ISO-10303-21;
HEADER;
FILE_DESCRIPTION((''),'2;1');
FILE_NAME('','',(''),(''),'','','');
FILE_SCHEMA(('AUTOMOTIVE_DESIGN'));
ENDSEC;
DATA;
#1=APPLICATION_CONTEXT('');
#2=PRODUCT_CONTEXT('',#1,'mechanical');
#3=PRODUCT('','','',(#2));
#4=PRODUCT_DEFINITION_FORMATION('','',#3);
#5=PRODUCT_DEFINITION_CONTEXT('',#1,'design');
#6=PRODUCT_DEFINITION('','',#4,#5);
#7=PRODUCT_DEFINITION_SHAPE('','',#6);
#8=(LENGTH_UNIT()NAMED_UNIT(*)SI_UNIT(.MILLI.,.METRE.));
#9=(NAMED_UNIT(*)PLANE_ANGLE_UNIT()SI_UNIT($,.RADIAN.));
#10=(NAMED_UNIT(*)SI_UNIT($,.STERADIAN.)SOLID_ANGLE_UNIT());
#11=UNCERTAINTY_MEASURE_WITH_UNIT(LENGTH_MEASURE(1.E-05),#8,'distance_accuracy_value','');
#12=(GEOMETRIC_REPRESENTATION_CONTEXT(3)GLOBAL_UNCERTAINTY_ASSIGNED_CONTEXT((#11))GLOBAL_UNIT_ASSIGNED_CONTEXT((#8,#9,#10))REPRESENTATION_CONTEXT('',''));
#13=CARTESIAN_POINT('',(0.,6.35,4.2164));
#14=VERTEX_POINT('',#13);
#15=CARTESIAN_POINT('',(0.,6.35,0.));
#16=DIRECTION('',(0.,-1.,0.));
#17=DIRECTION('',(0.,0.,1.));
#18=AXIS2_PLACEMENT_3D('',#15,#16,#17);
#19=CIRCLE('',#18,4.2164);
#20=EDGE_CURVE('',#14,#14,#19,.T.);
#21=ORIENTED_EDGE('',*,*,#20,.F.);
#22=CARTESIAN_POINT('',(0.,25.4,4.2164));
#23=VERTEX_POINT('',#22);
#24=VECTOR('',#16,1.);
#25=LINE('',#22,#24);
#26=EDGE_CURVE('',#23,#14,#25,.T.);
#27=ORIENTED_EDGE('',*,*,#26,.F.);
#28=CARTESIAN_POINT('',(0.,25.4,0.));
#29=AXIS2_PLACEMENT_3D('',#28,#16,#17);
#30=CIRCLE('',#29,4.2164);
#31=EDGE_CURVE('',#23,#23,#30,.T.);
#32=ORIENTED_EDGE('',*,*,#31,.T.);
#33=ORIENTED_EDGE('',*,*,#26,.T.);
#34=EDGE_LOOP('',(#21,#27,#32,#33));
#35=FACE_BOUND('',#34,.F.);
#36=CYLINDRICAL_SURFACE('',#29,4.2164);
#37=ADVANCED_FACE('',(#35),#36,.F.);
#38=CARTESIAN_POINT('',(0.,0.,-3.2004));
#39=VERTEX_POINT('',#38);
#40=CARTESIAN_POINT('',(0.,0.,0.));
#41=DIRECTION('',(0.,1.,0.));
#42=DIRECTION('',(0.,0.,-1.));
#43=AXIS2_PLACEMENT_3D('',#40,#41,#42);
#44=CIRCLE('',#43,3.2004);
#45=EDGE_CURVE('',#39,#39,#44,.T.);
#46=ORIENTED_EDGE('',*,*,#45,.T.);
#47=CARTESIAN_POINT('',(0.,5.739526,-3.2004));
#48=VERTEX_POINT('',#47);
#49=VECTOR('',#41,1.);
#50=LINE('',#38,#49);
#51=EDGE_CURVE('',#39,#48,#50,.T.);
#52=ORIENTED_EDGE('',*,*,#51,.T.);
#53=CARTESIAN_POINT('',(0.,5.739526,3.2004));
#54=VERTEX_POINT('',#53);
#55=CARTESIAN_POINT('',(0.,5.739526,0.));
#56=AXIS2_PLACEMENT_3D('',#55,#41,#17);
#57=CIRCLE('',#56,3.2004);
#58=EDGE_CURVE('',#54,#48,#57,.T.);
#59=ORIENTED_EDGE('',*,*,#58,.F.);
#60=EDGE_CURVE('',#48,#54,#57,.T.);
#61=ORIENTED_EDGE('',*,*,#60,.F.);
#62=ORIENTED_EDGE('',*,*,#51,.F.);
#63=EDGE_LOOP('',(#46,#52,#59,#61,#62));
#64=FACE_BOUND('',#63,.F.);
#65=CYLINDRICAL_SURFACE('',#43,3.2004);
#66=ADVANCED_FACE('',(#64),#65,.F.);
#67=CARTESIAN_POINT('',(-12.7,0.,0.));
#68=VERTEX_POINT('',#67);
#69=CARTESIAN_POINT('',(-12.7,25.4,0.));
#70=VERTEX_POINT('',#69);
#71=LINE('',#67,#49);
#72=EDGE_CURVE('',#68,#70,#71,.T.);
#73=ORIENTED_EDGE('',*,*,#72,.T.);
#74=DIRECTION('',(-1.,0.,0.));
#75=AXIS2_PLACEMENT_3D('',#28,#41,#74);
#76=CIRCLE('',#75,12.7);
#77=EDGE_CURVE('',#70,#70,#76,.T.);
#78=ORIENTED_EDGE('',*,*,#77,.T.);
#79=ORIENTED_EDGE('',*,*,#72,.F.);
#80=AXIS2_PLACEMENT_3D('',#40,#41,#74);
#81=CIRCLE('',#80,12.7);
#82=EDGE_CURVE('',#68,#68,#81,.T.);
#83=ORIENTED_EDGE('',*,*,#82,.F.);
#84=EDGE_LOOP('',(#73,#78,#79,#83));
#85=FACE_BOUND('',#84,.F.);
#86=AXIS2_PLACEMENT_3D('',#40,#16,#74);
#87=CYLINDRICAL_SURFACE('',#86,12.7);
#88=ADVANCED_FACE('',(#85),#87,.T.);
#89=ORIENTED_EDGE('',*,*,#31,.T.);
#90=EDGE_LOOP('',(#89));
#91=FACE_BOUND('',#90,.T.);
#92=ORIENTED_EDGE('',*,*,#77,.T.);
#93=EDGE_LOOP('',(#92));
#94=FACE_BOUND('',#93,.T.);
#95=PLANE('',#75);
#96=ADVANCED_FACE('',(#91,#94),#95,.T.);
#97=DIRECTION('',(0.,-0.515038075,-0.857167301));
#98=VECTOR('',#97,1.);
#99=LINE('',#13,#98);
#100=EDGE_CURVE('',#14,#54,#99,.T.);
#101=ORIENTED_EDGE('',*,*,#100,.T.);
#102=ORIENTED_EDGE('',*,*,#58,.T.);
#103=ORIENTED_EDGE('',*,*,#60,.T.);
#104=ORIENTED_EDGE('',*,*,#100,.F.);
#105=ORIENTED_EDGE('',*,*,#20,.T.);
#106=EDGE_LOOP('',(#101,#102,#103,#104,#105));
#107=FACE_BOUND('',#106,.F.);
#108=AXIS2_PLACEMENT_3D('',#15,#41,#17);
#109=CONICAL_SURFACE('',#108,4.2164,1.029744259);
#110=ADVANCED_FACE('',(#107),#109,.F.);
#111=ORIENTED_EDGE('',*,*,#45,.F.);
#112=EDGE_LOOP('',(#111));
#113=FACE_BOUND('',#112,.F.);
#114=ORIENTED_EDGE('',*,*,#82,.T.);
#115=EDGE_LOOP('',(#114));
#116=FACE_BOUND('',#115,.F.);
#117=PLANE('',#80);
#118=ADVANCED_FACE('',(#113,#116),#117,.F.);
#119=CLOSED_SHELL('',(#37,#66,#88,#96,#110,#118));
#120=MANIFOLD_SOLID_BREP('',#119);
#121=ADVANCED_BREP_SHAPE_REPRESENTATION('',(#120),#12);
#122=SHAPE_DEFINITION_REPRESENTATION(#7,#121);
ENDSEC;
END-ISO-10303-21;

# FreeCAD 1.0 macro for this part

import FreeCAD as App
import Part
import Sketcher
Q = App.Units.Quantity

doc = App.newDocument("Part")
params = doc.addObject("Spreadsheet::Sheet", "Params")
for row, (alias, value) in enumerate([
    ("sketch1_diameter", "1 in"),
    ("pad1_length", "1 in"),
    ("sketch2_diameter", "0.332 in"),
    ("hole_diameter", "0.332 in"),
    ("hole_depth", "0.75 in"),
    ("sketch3_diameter", "0.252 in"),
    ("hole2_diameter", "0.252 in"),
    ("hole2_depth", "0.5 in"),
], start=1):
    params.set(f"A{row}", alias)
    params.set(f"B{row}", "=" + value)
    params.setAlias(f"B{row}", alias)

body = doc.addObject("PartDesign::Body", "Body")

# Sketch on XZ plane
sketch1 = body.newObject("Sketcher::SketchObject", "Sketch")
sketch1.AttachmentSupport = (doc.getObject("XZ_Plane"), [""])
sketch1.MapMode = "FlatFace"
sketch1.addGeometry(Part.Circle(App.Vector(0, 0, 0), App.Vector(0, 0, 1), 13), False)
sketch1.addConstraint([
    Sketcher.Constraint("Coincident", 0, 3, -1, 1),
    Sketcher.Constraint("Diameter", 0, Q("1 in")),
])
sketch1.setExpression("Constraints[1]", "Params.sketch1_diameter")
pad1 = body.newObject("PartDesign::Pad", "Pad")
pad1.Profile = sketch1
pad1.setExpression("Length", "Params.pad1_length")
pad1.Reversed = True

# Sketch on XZ plane
sketch2 = body.newObject("Sketcher::SketchObject", "Sketch001")
sketch2.AttachmentSupport = (doc.getObject("XZ_Plane"), [""])
sketch2.MapMode = "FlatFace"
sketch2.AttachmentOffset = App.Placement(App.Vector(0, 0, -1 * 25.4), App.Rotation())
sketch2.addGeometry(Part.Circle(App.Vector(0, 0, 0), App.Vector(0, 0, 1), 4.2), False)
sketch2.addConstraint([
    Sketcher.Constraint("Coincident", 0, 3, -1, 1),
    Sketcher.Constraint("Diameter", 0, Q("0.332 in")),
])
sketch2.setExpression("Constraints[1]", "Params.sketch2_diameter")
doc.recompute()
hole = body.newObject("PartDesign::Hole", "Hole")
hole.Profile = sketch2
hole.ThreadType = "None"
hole.setExpression("Diameter", "Params.hole_diameter")
hole.DepthType = "Dimension"
hole.setExpression("Depth", "Params.hole_depth")
hole.DrillPoint = "Angled"
hole.DrillPointAngle = 118
hole.Reversed = True

# Sketch on XZ plane
sketch3 = body.newObject("Sketcher::SketchObject", "Sketch002")
sketch3.AttachmentSupport = (doc.getObject("XZ_Plane"), [""])
sketch3.MapMode = "FlatFace"
sketch3.addGeometry(Part.Circle(App.Vector(0, 0, 0), App.Vector(0, 0, 1), 3.2), False)
sketch3.addConstraint([
    Sketcher.Constraint("Coincident", 0, 3, -1, 1),
    Sketcher.Constraint("Diameter", 0, Q("0.252 in")),
])
sketch3.setExpression("Constraints[1]", "Params.sketch3_diameter")
doc.recompute()
hole2 = body.newObject("PartDesign::Hole", "Hole001")
hole2.Profile = sketch3
hole2.ThreadType = "None"
hole2.setExpression("Diameter", "Params.hole2_diameter")
hole2.DepthType = "Dimension"
hole2.setExpression("Depth", "Params.hole2_depth")
hole2.DrillPoint = "Angled"
hole2.DrillPointAngle = 118

doc.recompute()
